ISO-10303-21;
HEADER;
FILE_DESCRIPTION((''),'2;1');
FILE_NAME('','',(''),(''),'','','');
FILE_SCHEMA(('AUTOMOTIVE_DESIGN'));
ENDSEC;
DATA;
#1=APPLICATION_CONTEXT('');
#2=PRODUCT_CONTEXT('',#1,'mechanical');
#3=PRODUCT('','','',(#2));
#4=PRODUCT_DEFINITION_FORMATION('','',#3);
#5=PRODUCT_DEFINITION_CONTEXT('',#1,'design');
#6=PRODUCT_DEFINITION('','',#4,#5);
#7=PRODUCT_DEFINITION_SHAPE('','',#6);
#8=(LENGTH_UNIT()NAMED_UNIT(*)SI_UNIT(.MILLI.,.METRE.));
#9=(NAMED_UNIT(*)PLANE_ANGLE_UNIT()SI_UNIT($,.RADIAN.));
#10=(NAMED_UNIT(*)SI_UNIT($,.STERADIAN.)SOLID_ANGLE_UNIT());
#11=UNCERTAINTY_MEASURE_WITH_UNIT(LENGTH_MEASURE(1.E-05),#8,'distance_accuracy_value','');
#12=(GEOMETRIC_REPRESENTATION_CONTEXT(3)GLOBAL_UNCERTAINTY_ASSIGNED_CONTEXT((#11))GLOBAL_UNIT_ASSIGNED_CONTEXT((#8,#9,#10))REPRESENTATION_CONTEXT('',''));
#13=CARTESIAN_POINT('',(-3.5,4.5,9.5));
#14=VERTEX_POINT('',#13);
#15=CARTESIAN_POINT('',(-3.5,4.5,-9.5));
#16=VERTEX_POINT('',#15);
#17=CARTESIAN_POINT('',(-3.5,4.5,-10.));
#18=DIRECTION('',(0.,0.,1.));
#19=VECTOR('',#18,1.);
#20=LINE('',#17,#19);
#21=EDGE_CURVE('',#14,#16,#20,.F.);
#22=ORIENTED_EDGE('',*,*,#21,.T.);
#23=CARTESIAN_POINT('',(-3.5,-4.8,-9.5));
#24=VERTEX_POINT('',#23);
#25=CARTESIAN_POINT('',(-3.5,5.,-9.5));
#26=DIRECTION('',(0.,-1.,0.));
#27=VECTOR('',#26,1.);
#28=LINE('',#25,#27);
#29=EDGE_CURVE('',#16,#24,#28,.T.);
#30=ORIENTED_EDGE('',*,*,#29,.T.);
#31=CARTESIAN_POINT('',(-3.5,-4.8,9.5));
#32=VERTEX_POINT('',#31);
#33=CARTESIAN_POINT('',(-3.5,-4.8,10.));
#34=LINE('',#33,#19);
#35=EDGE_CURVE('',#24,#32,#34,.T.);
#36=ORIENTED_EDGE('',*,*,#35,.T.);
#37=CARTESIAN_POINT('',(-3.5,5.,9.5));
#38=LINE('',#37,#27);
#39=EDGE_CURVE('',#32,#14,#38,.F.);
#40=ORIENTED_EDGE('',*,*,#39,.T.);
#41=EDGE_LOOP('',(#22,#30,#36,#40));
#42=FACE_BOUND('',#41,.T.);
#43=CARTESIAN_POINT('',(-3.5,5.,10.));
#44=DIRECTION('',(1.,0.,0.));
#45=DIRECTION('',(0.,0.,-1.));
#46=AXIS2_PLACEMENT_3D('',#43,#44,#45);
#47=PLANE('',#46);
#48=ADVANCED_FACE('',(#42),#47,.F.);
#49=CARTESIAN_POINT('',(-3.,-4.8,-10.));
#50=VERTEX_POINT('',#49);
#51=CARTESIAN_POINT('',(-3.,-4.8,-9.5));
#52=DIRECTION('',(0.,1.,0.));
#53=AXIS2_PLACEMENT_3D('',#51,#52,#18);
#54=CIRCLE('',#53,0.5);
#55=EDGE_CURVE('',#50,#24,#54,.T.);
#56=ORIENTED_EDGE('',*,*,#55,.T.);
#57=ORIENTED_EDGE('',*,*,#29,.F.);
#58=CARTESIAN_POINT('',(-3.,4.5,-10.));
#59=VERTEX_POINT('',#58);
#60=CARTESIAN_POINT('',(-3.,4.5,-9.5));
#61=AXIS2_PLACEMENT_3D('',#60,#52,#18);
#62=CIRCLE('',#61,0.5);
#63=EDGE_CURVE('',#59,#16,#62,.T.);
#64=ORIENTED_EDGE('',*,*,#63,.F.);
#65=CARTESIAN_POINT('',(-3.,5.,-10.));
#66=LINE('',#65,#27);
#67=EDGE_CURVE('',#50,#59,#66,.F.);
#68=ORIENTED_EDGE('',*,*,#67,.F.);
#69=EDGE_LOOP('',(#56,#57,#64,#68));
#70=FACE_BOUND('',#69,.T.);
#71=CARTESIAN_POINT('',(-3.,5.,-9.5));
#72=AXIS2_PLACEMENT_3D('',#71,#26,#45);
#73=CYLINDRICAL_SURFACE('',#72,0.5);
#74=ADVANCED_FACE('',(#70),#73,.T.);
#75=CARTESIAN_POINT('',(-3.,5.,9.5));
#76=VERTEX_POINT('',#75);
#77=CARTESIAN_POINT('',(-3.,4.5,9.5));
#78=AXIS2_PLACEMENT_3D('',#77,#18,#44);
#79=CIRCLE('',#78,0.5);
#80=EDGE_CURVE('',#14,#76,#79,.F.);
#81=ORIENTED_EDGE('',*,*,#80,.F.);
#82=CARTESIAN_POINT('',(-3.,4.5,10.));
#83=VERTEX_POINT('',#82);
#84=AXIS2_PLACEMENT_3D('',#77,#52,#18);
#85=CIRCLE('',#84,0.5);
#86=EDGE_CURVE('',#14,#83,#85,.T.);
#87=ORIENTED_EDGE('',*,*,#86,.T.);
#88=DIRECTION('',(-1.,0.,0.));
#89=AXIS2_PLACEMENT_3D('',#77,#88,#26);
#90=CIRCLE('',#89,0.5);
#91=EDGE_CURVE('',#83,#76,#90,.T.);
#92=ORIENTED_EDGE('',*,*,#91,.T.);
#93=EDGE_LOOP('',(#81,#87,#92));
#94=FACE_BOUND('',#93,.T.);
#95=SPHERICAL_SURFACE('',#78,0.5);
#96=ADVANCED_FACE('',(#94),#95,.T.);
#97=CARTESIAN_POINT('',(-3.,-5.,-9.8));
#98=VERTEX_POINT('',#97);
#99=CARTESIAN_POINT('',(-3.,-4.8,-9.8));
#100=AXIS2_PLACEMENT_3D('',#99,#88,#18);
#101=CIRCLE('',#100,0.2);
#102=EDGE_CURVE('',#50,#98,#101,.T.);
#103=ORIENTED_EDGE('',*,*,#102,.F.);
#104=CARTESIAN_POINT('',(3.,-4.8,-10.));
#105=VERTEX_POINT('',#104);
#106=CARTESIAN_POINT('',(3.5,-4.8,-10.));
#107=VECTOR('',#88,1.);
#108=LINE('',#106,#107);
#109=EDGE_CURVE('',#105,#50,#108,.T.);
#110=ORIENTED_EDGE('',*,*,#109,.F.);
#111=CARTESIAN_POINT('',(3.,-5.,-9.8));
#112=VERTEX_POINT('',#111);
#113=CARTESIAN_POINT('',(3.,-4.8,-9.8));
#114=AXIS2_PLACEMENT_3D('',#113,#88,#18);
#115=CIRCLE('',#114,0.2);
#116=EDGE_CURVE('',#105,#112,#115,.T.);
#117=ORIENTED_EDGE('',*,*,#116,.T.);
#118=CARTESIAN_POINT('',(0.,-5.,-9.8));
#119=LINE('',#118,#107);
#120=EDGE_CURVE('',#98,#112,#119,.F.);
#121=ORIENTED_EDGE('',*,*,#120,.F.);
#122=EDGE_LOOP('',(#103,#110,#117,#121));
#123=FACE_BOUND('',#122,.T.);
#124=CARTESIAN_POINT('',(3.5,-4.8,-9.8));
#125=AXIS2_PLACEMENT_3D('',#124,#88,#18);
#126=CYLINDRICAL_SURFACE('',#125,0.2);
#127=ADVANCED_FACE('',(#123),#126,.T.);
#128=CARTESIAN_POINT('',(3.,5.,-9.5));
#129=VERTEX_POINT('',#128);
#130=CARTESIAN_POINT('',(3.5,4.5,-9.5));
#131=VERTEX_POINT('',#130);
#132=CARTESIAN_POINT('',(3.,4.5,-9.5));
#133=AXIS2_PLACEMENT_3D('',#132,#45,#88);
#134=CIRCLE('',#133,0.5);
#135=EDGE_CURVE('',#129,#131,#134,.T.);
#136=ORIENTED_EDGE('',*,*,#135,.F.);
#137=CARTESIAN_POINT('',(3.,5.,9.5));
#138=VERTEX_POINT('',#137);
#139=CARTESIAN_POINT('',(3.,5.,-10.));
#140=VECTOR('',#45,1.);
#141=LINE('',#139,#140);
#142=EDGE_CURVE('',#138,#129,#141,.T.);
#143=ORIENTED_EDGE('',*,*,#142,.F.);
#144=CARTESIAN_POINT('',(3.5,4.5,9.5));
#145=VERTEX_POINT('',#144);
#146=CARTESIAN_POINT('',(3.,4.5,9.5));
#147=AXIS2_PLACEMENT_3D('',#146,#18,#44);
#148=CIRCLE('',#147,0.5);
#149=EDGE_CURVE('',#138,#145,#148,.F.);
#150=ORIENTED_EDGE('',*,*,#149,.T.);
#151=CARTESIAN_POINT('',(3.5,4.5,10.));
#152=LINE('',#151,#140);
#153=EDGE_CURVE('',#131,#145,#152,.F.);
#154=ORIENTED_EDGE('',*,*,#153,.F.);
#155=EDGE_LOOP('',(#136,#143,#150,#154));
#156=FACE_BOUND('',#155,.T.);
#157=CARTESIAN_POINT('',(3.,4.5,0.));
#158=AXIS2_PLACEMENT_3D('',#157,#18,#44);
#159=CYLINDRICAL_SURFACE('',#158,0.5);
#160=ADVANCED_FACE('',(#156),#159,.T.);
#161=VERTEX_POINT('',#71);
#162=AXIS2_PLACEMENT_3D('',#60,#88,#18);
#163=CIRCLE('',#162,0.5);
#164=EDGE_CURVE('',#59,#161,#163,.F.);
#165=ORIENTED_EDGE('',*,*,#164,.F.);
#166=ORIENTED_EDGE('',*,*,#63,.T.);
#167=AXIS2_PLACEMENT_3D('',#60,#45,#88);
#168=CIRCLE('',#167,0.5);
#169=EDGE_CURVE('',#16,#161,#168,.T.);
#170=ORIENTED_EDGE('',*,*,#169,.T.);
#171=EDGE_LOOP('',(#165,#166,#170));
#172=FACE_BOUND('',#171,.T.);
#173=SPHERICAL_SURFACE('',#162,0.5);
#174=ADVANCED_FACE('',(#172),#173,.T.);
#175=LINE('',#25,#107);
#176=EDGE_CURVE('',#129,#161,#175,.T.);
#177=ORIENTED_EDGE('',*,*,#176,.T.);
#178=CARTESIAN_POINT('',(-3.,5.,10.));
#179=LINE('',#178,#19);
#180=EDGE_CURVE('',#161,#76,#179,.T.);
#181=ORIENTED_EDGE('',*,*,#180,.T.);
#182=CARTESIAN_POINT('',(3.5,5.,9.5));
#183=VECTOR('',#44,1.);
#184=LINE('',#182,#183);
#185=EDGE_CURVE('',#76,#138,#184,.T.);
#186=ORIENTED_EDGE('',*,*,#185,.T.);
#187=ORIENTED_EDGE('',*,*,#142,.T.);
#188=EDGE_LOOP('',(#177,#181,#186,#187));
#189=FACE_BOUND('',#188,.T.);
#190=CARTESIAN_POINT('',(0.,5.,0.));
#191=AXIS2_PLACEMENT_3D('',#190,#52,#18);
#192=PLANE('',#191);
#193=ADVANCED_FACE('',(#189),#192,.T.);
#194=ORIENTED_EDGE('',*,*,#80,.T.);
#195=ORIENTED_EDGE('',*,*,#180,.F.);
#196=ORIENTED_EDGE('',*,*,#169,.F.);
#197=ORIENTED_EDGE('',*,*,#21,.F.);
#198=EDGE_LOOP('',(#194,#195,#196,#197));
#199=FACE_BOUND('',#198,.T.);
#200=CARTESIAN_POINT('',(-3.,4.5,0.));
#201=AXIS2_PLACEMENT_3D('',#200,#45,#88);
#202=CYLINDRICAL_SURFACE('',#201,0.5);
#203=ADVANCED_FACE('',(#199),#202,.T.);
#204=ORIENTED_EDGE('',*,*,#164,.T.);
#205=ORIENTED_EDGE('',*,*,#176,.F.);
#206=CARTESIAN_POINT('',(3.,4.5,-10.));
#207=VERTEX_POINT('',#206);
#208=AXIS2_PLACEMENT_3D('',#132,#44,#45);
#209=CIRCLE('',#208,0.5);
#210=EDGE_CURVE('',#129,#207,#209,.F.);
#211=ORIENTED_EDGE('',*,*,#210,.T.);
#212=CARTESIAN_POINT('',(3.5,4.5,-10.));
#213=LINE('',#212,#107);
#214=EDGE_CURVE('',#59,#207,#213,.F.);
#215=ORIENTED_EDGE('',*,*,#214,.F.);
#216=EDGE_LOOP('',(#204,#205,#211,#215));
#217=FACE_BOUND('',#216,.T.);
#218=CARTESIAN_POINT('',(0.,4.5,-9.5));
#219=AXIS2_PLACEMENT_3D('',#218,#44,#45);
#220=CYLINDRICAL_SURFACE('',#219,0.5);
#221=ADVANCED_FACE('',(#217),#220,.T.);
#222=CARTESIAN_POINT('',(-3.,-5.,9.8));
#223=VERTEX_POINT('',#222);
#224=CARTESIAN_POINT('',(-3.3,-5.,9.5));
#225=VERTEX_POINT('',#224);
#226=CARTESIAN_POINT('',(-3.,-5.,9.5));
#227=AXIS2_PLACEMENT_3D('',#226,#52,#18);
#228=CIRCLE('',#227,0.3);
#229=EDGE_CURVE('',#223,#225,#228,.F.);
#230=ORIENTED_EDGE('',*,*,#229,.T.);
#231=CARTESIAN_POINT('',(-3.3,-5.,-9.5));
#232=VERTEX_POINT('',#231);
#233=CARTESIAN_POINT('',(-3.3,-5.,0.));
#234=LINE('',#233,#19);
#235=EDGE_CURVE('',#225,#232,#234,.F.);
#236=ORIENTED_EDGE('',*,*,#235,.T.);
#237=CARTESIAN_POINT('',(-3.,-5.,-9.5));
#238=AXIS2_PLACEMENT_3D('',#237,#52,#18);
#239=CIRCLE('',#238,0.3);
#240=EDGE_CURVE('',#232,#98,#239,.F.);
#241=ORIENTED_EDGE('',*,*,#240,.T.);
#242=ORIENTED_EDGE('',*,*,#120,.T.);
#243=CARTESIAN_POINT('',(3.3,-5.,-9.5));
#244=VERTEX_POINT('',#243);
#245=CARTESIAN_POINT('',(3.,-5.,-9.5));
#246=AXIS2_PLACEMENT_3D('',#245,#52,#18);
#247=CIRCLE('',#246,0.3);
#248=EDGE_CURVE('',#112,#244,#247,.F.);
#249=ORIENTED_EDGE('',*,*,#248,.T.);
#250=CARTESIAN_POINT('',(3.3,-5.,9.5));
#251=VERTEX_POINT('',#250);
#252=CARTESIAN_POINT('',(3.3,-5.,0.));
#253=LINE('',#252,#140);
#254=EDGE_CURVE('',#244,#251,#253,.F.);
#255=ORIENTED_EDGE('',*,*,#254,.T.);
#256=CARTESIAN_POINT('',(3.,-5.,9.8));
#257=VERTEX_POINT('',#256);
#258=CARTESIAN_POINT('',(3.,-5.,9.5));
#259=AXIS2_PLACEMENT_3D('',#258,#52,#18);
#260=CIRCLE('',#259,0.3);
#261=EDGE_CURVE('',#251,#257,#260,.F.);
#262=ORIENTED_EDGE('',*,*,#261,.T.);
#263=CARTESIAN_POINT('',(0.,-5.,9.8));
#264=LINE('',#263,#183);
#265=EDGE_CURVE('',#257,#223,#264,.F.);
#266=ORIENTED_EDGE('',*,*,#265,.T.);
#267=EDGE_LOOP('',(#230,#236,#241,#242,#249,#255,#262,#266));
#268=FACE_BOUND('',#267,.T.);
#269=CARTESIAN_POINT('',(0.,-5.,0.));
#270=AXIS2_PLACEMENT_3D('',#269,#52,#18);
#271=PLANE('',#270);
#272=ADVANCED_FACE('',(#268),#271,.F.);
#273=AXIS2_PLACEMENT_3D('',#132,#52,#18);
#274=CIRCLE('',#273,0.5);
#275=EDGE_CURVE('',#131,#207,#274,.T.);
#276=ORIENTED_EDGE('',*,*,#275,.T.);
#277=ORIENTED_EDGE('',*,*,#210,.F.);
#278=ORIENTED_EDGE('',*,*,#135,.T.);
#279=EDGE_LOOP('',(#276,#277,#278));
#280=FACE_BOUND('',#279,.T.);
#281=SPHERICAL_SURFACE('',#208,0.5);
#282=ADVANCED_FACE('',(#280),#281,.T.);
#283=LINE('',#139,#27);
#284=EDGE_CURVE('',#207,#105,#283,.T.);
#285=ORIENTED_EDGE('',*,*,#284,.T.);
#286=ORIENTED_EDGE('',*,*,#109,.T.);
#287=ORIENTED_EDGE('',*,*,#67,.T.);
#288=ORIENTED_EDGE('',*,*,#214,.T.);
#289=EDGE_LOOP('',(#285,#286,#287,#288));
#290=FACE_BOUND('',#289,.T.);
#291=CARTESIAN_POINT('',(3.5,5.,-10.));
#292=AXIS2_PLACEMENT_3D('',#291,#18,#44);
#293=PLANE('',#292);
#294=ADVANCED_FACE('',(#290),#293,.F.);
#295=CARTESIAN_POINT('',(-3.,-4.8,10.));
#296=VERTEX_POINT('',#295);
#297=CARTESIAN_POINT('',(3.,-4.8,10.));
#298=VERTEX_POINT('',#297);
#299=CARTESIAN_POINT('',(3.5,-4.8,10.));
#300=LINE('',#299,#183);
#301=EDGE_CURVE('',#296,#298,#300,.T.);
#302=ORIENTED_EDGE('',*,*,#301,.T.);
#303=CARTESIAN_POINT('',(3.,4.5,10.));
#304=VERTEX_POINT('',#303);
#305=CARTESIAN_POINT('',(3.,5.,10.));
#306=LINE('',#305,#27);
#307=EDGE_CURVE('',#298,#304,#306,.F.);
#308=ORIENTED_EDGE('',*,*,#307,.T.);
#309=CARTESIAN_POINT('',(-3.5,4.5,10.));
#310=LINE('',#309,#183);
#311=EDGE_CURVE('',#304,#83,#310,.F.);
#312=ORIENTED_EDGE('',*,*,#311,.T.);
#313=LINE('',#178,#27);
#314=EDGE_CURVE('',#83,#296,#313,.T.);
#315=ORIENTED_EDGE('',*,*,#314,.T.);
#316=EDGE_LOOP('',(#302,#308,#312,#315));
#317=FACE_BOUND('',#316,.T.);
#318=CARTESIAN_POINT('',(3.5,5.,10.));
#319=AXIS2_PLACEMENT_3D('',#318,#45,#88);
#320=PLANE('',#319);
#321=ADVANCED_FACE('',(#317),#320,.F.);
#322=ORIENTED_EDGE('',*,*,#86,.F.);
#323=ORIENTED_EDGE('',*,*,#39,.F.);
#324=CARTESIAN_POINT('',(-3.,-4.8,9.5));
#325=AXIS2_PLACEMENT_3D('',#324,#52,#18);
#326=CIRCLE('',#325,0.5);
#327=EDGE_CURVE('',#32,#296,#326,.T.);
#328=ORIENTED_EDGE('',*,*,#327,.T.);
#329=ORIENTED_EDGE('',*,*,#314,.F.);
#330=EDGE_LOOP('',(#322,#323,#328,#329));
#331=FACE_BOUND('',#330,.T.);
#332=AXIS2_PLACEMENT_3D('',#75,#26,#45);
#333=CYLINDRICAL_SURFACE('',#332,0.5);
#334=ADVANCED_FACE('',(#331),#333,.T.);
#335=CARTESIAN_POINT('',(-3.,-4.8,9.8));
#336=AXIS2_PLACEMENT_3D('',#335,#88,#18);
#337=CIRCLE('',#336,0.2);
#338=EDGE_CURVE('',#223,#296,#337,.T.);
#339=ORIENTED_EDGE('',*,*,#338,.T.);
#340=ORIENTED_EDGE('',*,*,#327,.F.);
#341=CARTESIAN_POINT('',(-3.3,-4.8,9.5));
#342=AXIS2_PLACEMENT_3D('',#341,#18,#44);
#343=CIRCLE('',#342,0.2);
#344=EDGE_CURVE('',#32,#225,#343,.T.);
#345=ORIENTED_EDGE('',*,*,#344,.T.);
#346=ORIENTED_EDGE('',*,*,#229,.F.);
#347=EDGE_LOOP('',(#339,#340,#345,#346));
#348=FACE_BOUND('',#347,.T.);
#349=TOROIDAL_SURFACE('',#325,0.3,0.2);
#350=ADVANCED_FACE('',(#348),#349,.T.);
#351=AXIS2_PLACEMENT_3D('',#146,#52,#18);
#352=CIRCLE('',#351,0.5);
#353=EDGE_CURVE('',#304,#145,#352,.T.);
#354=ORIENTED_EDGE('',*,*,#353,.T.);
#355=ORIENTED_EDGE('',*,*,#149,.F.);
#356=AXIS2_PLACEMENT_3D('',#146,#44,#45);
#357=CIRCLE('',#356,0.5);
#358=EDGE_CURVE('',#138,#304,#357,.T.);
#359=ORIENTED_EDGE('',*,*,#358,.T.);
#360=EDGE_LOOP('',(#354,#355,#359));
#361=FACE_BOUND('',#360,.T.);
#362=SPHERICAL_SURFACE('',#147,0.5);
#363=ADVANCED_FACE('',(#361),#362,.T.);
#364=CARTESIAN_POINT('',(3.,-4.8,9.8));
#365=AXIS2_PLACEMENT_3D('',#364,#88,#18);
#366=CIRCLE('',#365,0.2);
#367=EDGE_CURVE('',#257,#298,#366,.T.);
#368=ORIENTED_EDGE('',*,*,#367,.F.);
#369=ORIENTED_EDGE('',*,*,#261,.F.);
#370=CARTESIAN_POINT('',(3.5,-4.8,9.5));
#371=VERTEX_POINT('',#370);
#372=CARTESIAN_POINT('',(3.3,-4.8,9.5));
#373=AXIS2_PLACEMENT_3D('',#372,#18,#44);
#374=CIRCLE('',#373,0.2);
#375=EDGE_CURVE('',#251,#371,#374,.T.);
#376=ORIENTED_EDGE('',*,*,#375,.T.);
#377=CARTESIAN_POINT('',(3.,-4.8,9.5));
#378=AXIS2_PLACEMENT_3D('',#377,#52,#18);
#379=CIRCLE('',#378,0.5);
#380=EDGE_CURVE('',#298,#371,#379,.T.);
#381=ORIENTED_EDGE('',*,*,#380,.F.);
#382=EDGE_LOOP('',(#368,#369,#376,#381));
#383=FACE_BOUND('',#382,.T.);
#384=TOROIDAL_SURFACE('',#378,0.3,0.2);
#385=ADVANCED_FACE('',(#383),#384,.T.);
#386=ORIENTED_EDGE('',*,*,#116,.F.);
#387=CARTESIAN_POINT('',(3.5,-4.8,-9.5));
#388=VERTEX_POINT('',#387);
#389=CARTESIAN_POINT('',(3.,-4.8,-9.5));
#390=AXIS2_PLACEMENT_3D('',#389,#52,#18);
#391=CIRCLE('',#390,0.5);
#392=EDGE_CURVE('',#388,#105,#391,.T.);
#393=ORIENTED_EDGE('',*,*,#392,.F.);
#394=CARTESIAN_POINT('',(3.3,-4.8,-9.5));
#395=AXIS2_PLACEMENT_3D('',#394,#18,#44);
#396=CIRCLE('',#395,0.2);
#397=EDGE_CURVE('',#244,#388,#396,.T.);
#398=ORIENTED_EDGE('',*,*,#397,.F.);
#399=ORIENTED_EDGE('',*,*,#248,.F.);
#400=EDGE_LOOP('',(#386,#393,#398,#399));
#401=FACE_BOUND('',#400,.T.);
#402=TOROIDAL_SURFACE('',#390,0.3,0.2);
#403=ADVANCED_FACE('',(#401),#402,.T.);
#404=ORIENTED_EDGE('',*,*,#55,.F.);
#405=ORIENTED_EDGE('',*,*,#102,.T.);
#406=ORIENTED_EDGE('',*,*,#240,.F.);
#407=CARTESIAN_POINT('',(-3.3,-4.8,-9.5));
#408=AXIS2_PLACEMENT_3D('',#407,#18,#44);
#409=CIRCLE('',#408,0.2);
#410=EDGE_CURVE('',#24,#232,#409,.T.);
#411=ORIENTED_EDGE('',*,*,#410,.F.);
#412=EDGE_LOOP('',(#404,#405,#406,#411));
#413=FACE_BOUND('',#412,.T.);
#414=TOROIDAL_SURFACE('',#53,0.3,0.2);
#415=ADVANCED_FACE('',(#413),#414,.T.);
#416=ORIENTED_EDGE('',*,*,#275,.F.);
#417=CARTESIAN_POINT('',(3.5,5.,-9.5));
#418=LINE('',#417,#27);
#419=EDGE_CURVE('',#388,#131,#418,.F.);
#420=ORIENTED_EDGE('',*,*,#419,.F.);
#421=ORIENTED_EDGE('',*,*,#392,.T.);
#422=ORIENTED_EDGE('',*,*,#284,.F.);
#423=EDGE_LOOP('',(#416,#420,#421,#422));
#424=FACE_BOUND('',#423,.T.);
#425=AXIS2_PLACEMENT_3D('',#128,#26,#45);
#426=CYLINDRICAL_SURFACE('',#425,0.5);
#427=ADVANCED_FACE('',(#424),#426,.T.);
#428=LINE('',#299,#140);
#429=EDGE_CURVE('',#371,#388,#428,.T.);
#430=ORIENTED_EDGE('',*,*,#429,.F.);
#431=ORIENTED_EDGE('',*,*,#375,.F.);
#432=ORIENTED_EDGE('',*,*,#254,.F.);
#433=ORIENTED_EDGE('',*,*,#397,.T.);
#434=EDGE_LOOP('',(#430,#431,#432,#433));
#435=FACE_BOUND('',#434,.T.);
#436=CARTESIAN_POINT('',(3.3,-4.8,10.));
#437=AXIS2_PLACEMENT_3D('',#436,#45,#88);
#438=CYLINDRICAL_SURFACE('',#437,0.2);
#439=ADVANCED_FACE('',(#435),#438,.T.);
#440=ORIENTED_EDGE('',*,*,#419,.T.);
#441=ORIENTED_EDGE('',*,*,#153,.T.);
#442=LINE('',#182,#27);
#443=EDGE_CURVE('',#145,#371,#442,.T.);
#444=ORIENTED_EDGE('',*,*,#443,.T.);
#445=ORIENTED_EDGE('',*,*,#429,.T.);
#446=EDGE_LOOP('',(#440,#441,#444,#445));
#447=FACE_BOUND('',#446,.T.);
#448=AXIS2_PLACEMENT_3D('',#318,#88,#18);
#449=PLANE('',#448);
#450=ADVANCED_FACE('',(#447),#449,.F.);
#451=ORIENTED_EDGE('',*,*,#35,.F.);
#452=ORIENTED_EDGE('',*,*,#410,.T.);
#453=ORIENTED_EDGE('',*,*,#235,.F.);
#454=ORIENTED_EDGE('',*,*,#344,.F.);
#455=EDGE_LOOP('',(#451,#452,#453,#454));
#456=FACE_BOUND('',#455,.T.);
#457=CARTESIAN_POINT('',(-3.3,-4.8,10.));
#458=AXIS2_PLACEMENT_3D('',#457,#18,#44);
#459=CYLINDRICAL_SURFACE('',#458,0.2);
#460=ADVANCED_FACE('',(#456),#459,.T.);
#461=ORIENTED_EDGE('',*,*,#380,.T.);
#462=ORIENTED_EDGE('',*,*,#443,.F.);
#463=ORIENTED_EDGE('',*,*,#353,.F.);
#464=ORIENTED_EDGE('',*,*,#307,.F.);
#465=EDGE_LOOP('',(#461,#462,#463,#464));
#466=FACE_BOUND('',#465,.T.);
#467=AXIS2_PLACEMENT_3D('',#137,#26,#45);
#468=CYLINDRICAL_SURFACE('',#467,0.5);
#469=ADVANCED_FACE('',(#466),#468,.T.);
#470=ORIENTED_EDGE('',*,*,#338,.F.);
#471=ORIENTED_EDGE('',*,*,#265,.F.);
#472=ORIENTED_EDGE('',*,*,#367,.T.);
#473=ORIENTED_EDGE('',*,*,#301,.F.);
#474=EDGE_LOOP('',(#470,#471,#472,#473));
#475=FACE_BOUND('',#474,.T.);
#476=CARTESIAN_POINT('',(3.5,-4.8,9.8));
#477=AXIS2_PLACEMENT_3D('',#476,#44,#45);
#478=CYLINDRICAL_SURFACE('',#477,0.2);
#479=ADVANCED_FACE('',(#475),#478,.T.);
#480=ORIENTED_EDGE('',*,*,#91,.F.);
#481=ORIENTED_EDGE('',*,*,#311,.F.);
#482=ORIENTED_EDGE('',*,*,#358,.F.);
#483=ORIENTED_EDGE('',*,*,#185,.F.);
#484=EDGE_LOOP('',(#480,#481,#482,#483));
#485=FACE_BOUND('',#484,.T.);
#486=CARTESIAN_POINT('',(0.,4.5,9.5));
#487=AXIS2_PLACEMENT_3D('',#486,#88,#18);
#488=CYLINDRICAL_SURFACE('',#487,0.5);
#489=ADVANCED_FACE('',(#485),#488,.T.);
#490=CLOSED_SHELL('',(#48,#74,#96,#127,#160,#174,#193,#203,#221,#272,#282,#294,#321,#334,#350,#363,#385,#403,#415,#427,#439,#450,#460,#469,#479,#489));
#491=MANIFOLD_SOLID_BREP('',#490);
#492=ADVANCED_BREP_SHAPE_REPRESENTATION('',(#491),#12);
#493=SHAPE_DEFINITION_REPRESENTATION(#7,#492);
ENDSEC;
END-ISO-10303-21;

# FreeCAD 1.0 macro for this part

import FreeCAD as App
import Part
import Sketcher

V = App.Vector
Q = App.Units.Quantity


def edges_at(feature, points):
    """Names of the edges that pass closest to the given points."""
    edges = feature.Shape.Edges
    near = lambda p: min(range(len(edges)), key=lambda i: edges[i].distToShape(Part.Vertex(*p))[0])
    return sorted({f"Edge{near(p) + 1}" for p in points})

doc = App.newDocument("Part")
params = doc.addObject("Spreadsheet::Sheet", "Params")
for row, (alias, value) in enumerate([
    ("sketch1_width", "7 mm"),
    ("sketch1_height", "20 mm"),
    ("pad1_length", "10 mm"),
    ("fillet_radius", "0.5 mm"),
    ("fillet2_radius", "0.2 mm"),
], start=1):
    params.set(f"A{row}", alias)
    params.set(f"B{row}", "=" + value)
    params.setAlias(f"B{row}", alias)

body = doc.addObject("PartDesign::Body", "Body")

# Sketch on XZ plane
sketch1 = body.newObject("Sketcher::SketchObject", "Sketch")
sketch1.AttachmentSupport = (doc.getObject("XZ_Plane"), [""])
sketch1.MapMode = "FlatFace"
sketch1.addGeometry(Part.LineSegment(V(-3.5, -10, 0), V(-3.5, 10, 0)), False)
sketch1.addGeometry(Part.LineSegment(V(-3.5, 10, 0), V(3.5, 10, 0)), False)
sketch1.addGeometry(Part.LineSegment(V(3.5, 10, 0), V(3.5, -10, 0)), False)
sketch1.addGeometry(Part.LineSegment(V(3.5, -10, 0), V(-3.5, -10, 0)), False)
sketch1.addConstraint(Sketcher.Constraint("Coincident", 0, 2, 1, 1))
sketch1.addConstraint(Sketcher.Constraint("Coincident", 1, 2, 2, 1))
sketch1.addConstraint(Sketcher.Constraint("Coincident", 2, 2, 3, 1))
sketch1.addConstraint(Sketcher.Constraint("Coincident", 3, 2, 0, 1))
sketch1.addConstraint(Sketcher.Constraint("Vertical", 0))
sketch1.addConstraint(Sketcher.Constraint("Horizontal", 1))
sketch1.addConstraint(Sketcher.Constraint("Vertical", 2))
sketch1.addConstraint(Sketcher.Constraint("Horizontal", 3))
sketch1.addConstraint(Sketcher.Constraint("Symmetric", 0, 2, 2, 2, -1, 1))
sketch1.addConstraint(Sketcher.Constraint("DistanceX", 1, 1, 1, 2, Q("7 mm")))
sketch1.addConstraint(Sketcher.Constraint("DistanceY", 0, 1, 0, 2, Q("20 mm")))
sketch1.setExpression("Constraints[9]", "Params.sketch1_width")
sketch1.setExpression("Constraints[10]", "Params.sketch1_height")
pad1 = body.newObject("PartDesign::Pad", "Pad")
pad1.Profile = sketch1
pad1.setExpression("Length", "Params.pad1_length")
pad1.Midplane = True
doc.recompute()

fillet = body.newObject("PartDesign::Fillet", "Fillet")
fillet.Base = (pad1, edges_at(pad1, [
    (3.5, 5, 0),
    (0, 5, -10),
    (-3.5, 5, 0),
    (-3.5, 0, -10),
    (3.5, 0, -10),
    (3.5, 0, 10),
    (-3.5, 0, 10),
    (0, 5, 10),
]))
fillet.setExpression("Radius", "Params.fillet_radius")
doc.recompute()

fillet2 = body.newObject("PartDesign::Fillet", "Fillet001")
fillet2.Base = (fillet, edges_at(fillet, [
    (0, -5, -10),
    (3.5, -5, 0),
    (0, -5, 10),
    (-3.5, -5, 0),
    (3.354, -5, 9.854),
    (3.354, -5, -9.854),
    (-3.354, -5, 9.854),
    (-3.354, -5, -9.854),
]))
fillet2.setExpression("Radius", "Params.fillet2_radius")

doc.recompute()
